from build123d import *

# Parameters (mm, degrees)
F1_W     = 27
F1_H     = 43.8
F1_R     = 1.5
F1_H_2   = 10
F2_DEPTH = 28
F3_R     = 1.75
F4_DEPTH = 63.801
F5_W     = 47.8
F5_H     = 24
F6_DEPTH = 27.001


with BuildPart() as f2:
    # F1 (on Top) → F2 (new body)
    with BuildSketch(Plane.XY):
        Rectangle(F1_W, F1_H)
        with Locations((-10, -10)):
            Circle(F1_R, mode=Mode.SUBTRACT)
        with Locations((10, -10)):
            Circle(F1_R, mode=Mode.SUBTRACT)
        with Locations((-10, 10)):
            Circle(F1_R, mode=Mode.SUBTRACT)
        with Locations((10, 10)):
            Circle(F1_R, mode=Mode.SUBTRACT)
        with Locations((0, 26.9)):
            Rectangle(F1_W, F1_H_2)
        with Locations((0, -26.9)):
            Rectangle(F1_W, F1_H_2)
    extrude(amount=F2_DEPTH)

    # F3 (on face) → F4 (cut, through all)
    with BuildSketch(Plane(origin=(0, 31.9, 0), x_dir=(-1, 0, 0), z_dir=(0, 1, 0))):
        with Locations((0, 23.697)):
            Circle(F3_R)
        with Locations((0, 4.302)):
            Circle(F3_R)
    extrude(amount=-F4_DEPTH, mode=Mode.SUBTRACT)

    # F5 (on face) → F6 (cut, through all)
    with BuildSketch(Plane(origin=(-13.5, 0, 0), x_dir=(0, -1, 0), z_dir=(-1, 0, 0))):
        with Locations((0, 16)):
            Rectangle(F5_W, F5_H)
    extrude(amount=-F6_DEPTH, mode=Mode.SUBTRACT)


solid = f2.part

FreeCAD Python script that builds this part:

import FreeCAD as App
import Part
import Sketcher
from FreeCAD import Vector
Q = App.Units.Quantity


def add_polygon(sketch, points):
    """Adds a closed chain of lines whose ends are joined by coincident constraints."""
    first, n = sketch.GeometryCount, len(points)
    for a, b in zip(points, points[1:] + points[:1]):
        sketch.addGeometry(Part.LineSegment(App.Vector(*a, 0), App.Vector(*b, 0)), False)
    for i in range(n):
        sketch.addConstraint(Sketcher.Constraint("Coincident", first + i, 2, first + (i + 1) % n, 1))

doc = App.newDocument("Part")
body = doc.addObject("PartDesign::Body", "Body")

# Sketch on XY plane
sketch1 = doc.addObject("Sketcher::SketchObject", "Sketch")
body.addObject(sketch1)
sketch1.AttachmentSupport = (doc.XY_Plane, [""])
sketch1.MapMode = "FlatFace"
add_polygon(sketch1, [(13.5, 31.9), (-13.5, 31.9), (-13.5, -31.9), (13.5, -31.9)])  # lines 0-3
sketch1.addGeometry(Part.Circle(Vector(-10, -10, 0), Vector(0, 0, 1), 1.5), False)  # 4
sketch1.addGeometry(Part.Circle(Vector(10, -10, 0), Vector(0, 0, 1), 1.5), False)  # 5
sketch1.addGeometry(Part.Circle(Vector(-10, 10, 0), Vector(0, 0, 1), 1.5), False)  # 6
sketch1.addGeometry(Part.Circle(Vector(10, 10, 0), Vector(0, 0, 1), 1.5), False)  # 7
sketch1.addConstraint([
    Sketcher.Constraint("Horizontal", 0),
    Sketcher.Constraint("Vertical", 1),
    Sketcher.Constraint("Horizontal", 2),
    Sketcher.Constraint("Vertical", 3),
    Sketcher.Constraint("Equal", 4, 5),
    Sketcher.Constraint("Equal", 5, 6),
    Sketcher.Constraint("Equal", 6, 7),
    Sketcher.Constraint("Symmetric", 5, 3, 6, 3, -1, 1),
    Sketcher.Constraint("Symmetric", 4, 3, 7, 3, -1, 1),
    Sketcher.Constraint("Symmetric", 0, 2, 2, 2, -1, 1),
    Sketcher.Constraint("Symmetric", 4, 3, 5, 3, -2),
    Sketcher.Constraint("Diameter", 4, Q("3 mm")),
    Sketcher.Constraint("DistanceX", 0, 2, 0, 1, Q("27 mm")),
    Sketcher.Constraint("DistanceY", 1, 2, 1, 1, Q("63.8 mm")),
    Sketcher.Constraint("DistanceX", 4, 3, -1, 1, Q("10 mm")),
    Sketcher.Constraint("DistanceY", 4, 3, -1, 1, Q("10 mm")),
])
pad1 = doc.addObject("PartDesign::Pad", "Pad")
body.addObject(pad1)
pad1.Profile = sketch1
pad1.Length = 28

# Sketch on XZ plane
sketch2 = doc.addObject("Sketcher::SketchObject", "Sketch001")
body.addObject(sketch2)
sketch2.AttachmentSupport = (doc.XZ_Plane, [""])
sketch2.MapMode = "FlatFace"
sketch2.AttachmentOffset = App.Placement(Vector(0, 0, -31.9), App.Rotation())
sketch2.addGeometry([
    Part.Circle(Vector(0, 23.697, 0), Vector(0, 0, 1), 1.75),
    Part.Circle(Vector(0, 4.302, 0), Vector(0, 0, 1), 1.75),
], False)
sketch2.addConstraint([
    Sketcher.Constraint("Equal", 0, 1),
    Sketcher.Constraint("PointOnObject", 0, 3, -2),
    Sketcher.Constraint("PointOnObject", 1, 3, -2),
    Sketcher.Constraint("Diameter", 0, Q("3.5 mm")),
    Sketcher.Constraint("DistanceY", -1, 1, 0, 3, Q("23.697 mm")),
    Sketcher.Constraint("DistanceY", -1, 1, 1, 3, Q("4.302 mm")),
])
pocket1 = doc.addObject("PartDesign::Pocket", "Pocket")
body.addObject(pocket1)
pocket1.Profile = sketch2
pocket1.Type = "ThroughAll"
pocket1.Reversed = True

# Sketch on YZ plane
sketch3 = doc.addObject("Sketcher::SketchObject", "Sketch002")
body.addObject(sketch3)
sketch3.AttachmentSupport = (doc.YZ_Plane, [""])
sketch3.MapMode = "FlatFace"
sketch3.AttachmentOffset = App.Placement(Vector(0, 0, -13.5), App.Rotation())
add_polygon(sketch3, [(23.9, 28), (23.9, 4), (-23.9, 4), (-23.9, 28)])  # lines 0-3
sketch3.addConstraint([
    Sketcher.Constraint("Vertical", 0),
    Sketcher.Constraint("Horizontal", 1),
    Sketcher.Constraint("Vertical", 2),
    Sketcher.Constraint("Horizontal", 3),
    Sketcher.Constraint("DistanceY", 0, 2, 0, 1, Q("24 mm")),
    Sketcher.Constraint("DistanceX", 1, 2, 1, 1, Q("47.8 mm")),
    Sketcher.Constraint("DistanceY", -1, 1, 0, 2, Q("4 mm")),
    Sketcher.Constraint("DistanceX", -1, 1, 0, 2, Q("23.9 mm")),
])
pocket2 = doc.addObject("PartDesign::Pocket", "Pocket001")
body.addObject(pocket2)
pocket2.Profile = sketch3
pocket2.Type = "ThroughAll"
pocket2.Reversed = True

doc.recompute()
